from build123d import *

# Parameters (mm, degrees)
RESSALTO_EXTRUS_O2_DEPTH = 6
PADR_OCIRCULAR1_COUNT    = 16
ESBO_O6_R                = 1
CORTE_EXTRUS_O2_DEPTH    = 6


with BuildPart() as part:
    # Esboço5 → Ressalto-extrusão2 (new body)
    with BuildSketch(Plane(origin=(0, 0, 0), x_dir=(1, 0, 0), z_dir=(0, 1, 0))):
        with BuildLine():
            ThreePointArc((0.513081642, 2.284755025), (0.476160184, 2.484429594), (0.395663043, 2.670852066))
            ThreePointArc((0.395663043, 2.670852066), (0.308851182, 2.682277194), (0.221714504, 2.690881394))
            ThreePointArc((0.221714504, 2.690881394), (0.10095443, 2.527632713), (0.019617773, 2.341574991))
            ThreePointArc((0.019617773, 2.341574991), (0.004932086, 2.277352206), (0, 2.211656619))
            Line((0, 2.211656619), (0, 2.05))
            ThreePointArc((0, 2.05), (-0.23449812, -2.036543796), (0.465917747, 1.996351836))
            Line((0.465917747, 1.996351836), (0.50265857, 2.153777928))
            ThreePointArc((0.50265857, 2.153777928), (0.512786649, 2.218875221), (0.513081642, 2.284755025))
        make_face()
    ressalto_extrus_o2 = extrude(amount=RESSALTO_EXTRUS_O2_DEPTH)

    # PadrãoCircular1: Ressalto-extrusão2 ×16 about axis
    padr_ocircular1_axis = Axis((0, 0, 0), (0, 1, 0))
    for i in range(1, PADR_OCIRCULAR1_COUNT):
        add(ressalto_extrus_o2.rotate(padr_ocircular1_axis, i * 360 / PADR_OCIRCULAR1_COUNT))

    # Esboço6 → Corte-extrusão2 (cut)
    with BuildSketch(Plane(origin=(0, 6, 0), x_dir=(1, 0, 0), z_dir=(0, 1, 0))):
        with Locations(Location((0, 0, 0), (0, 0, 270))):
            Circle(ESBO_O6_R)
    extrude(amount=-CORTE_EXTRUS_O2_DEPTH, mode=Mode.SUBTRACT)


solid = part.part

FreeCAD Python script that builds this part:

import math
import FreeCAD as App
import Part
import Sketcher
from FreeCAD import Vector
Q = App.Units.Quantity

doc = App.newDocument("Part")
body = doc.addObject("PartDesign::Body", "Body")

sketch1 = doc.addObject("Sketcher::SketchObject", "Sketch")
body.addObject(sketch1)
sketch1.AttachmentSupport = (doc.XZ_Plane, [""])
sketch1.MapMode = "FlatFace"
sketch1.addGeometry([
    Part.ArcOfCircle(Part.Circle(Vector(-0.39, -2.22, 0), Vector(0, 0, 1), 0.91), math.radians(-30), math.radians(-4)),
    Part.ArcOfCircle(Part.Circle(Vector(0, 0, 0), Vector(0, 0, 1), 2.7), math.radians(-85.29), math.radians(-81.57)),
    Part.ArcOfCircle(Part.Circle(Vector(0.88, -2.07, 0), Vector(0, 0, 1), 0.91), math.radians(-163), math.radians(-137)),
    Part.ArcOfCircle(Part.Circle(Vector(0.44, -2.21, 0), Vector(0, 0, 1), 0.44), math.radians(-180), math.radians(-162.83)),
    Part.LineSegment(Vector(0, -2.21, 0), Vector(0, -2.05, 0)),
    Part.ArcOfCircle(Part.Circle(Vector(0, 0, 0), Vector(0, 0, 1), 2.05), math.radians(-77), math.radians(270)),
    Part.LineSegment(Vector(0.47, -2, 0), Vector(0.5, -2.15, 0)),
    Part.ArcOfCircle(Part.Circle(Vector(0.07, -2.25, 0), Vector(0, 0, 1), 0.44), math.radians(-4.04), math.radians(13.14)),
], False)
sketch1.addConstraint([
    Sketcher.Constraint("Coincident", 0, 1, 1, 2),
    Sketcher.Constraint("Coincident", 1, 1, 2, 2),
    Sketcher.Constraint("Tangent", 2, 1, 3, 2),
    Sketcher.Constraint("Tangent", 3, 1, 4, 1),
    Sketcher.Constraint("Coincident", 4, 2, 5, 2),
    Sketcher.Constraint("Coincident", 5, 1, 6, 1),
    Sketcher.Constraint("Tangent", 6, 2, 7, 2),
    Sketcher.Constraint("Tangent", 7, 1, 0, 2),
    Sketcher.Constraint("Vertical", 4),
    Sketcher.Constraint("Coincident", 1, 3, -1, 1),
    Sketcher.Constraint("Coincident", 5, 3, -1, 1),
    Sketcher.Constraint("Equal", 0, 2),
    Sketcher.Constraint("Equal", 3, 7),
    Sketcher.Constraint("PointOnObject", 3, 1, -2),
    Sketcher.Constraint("Radius", 1, Q("2.700001 mm")),
    Sketcher.Constraint("Radius", 3, Q("0.44 mm")),
    Sketcher.Constraint("Radius", 5, Q("2.05 mm")),
    Sketcher.Constraint("DistanceY", 7, 3, 6, 2, Q("0.100002 mm")),
    Sketcher.Constraint("Radius", 0, Q("0.905303 mm")),
    Sketcher.Constraint("DistanceY", 1, 1, 7, 3, Q("0.437102 mm")),
    Sketcher.Constraint("DistanceX", 6, 2, 2, 3, Q("0.381898 mm")),
    Sketcher.Constraint("DistanceY", 7, 1, 3, 3, Q("0.073098 mm")),
    Sketcher.Constraint("DistanceY", 4, 1, 4, 2, Q("0.161657 mm")),
    Sketcher.Constraint("DistanceY", 7, 3, -1, 1, Q("2.25378 mm")),
])
pad1 = doc.addObject("PartDesign::Pad", "Pad")
body.addObject(pad1)
pad1.Profile = sketch1
pad1.Length = 6
pad1.Reversed = True
doc.recompute()

polarpattern = doc.addObject("PartDesign::PolarPattern", "PolarPattern")
body.addObject(polarpattern)
polarpattern.Originals = [pad1]
polarpattern.Axis = (doc.Y_Axis, [""])
polarpattern.Angle = 360
polarpattern.Occurrences = 16
body.Tip = polarpattern

sketch2 = doc.addObject("Sketcher::SketchObject", "Sketch001")
body.addObject(sketch2)
sketch2.AttachmentSupport = (doc.XZ_Plane, [""])
sketch2.MapMode = "FlatFace"
sketch2.AttachmentOffset = App.Placement(Vector(0, 0, -6), App.Rotation())
sketch2.addGeometry(Part.Circle(Vector(0, 0, 0), Vector(0, 0, 1), 1), False)
sketch2.addConstraint([
    Sketcher.Constraint("Coincident", 0, 3, -1, 1),
    Sketcher.Constraint("Diameter", 0, Q("2 mm")),
])
pocket1 = doc.addObject("PartDesign::Pocket", "Pocket")
body.addObject(pocket1)
pocket1.Profile = sketch2
pocket1.Length = 6
pocket1.Reversed = True

doc.recompute()
